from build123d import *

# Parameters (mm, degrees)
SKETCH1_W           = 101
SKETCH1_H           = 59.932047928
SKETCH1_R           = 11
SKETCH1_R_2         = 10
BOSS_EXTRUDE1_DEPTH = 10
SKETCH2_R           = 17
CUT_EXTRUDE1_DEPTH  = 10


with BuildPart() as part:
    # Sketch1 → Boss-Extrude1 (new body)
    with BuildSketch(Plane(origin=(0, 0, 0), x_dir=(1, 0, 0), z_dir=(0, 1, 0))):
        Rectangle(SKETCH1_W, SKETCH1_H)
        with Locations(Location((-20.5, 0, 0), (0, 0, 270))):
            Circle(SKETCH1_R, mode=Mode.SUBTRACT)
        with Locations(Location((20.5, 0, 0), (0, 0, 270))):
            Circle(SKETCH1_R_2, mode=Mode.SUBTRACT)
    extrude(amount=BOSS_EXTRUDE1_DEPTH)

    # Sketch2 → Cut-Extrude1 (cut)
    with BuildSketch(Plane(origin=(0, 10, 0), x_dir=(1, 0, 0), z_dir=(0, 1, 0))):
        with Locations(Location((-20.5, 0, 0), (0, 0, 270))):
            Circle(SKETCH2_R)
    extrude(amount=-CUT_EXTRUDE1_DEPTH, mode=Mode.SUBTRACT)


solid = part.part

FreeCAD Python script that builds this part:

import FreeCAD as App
import Part
import Sketcher

doc = App.newDocument("Part")
body = doc.addObject("PartDesign::Body", "Body")

# Sketch on XZ plane
sketch1 = body.newObject("Sketcher::SketchObject", "Sketch")
sketch1.AttachmentSupport = (doc.getObject("XZ_Plane"), [""])
sketch1.MapMode = "FlatFace"
sketch1.addGeometry([
    Part.LineSegment(App.Vector(-50.5, -29.966024, 0), App.Vector(-50.5, 29.966024, 0)),  # 0
    Part.LineSegment(App.Vector(-50.5, 29.966024, 0), App.Vector(50.5, 29.966024, 0)),  # 1
    Part.LineSegment(App.Vector(50.5, 29.966024, 0), App.Vector(50.5, -29.966024, 0)),  # 2
    Part.LineSegment(App.Vector(50.5, -29.966024, 0), App.Vector(-50.5, -29.966024, 0)),  # 3
    Part.Circle(App.Vector(-20.5, 0, 0), App.Vector(0, 0, 1), 11),  # 4
    Part.Circle(App.Vector(20.5, 0, 0), App.Vector(0, 0, 1), 10),  # 5
], False)
sketch1.addConstraint([
    Sketcher.Constraint("Coincident", 0, 2, 1, 1),
    Sketcher.Constraint("Coincident", 1, 2, 2, 1),
    Sketcher.Constraint("Coincident", 2, 2, 3, 1),
    Sketcher.Constraint("Coincident", 3, 2, 0, 1),
    Sketcher.Constraint("Vertical", 0),
    Sketcher.Constraint("Horizontal", 1),
    Sketcher.Constraint("Vertical", 2),
    Sketcher.Constraint("Horizontal", 3),
    Sketcher.Constraint("Symmetric", 4, 3, 5, 3, -1, 1),
    Sketcher.Constraint("Symmetric", 0, 2, 2, 2, -1, 1),
    Sketcher.Constraint("PointOnObject", 4, 3, -1),
    Sketcher.Constraint("Diameter", 4, 22.0),
    Sketcher.Constraint("Diameter", 5, 20.0),
    Sketcher.Constraint("DistanceX", 1, 1, 1, 2, 101.0),
    Sketcher.Constraint("DistanceX", 4, 3, 5, 3, 41.0),
    Sketcher.Constraint("DistanceY", 0, 1, 0, 2, 59.932048),
])
pad1 = body.newObject("PartDesign::Pad", "Pad")
pad1.Profile = sketch1
pad1.Length = 10
pad1.Reversed = True

# Sketch on XZ plane
sketch2 = body.newObject("Sketcher::SketchObject", "Sketch001")
sketch2.AttachmentSupport = (doc.getObject("XZ_Plane"), [""])
sketch2.MapMode = "FlatFace"
sketch2.AttachmentOffset = App.Placement(App.Vector(0, 0, -10), App.Rotation())
sketch2.addGeometry(Part.Circle(App.Vector(-20.5, 0, 0), App.Vector(0, 0, 1), 17), False)
sketch2.addConstraint([
    Sketcher.Constraint("PointOnObject", 0, 3, -1),
    Sketcher.Constraint("Diameter", 0, 34.0),
    Sketcher.Constraint("DistanceX", 0, 3, -1, 1, 20.5),
])
pocket1 = body.newObject("PartDesign::Pocket", "Pocket")
pocket1.Profile = sketch2
pocket1.Length = 10
pocket1.Reversed = True

doc.recompute()
